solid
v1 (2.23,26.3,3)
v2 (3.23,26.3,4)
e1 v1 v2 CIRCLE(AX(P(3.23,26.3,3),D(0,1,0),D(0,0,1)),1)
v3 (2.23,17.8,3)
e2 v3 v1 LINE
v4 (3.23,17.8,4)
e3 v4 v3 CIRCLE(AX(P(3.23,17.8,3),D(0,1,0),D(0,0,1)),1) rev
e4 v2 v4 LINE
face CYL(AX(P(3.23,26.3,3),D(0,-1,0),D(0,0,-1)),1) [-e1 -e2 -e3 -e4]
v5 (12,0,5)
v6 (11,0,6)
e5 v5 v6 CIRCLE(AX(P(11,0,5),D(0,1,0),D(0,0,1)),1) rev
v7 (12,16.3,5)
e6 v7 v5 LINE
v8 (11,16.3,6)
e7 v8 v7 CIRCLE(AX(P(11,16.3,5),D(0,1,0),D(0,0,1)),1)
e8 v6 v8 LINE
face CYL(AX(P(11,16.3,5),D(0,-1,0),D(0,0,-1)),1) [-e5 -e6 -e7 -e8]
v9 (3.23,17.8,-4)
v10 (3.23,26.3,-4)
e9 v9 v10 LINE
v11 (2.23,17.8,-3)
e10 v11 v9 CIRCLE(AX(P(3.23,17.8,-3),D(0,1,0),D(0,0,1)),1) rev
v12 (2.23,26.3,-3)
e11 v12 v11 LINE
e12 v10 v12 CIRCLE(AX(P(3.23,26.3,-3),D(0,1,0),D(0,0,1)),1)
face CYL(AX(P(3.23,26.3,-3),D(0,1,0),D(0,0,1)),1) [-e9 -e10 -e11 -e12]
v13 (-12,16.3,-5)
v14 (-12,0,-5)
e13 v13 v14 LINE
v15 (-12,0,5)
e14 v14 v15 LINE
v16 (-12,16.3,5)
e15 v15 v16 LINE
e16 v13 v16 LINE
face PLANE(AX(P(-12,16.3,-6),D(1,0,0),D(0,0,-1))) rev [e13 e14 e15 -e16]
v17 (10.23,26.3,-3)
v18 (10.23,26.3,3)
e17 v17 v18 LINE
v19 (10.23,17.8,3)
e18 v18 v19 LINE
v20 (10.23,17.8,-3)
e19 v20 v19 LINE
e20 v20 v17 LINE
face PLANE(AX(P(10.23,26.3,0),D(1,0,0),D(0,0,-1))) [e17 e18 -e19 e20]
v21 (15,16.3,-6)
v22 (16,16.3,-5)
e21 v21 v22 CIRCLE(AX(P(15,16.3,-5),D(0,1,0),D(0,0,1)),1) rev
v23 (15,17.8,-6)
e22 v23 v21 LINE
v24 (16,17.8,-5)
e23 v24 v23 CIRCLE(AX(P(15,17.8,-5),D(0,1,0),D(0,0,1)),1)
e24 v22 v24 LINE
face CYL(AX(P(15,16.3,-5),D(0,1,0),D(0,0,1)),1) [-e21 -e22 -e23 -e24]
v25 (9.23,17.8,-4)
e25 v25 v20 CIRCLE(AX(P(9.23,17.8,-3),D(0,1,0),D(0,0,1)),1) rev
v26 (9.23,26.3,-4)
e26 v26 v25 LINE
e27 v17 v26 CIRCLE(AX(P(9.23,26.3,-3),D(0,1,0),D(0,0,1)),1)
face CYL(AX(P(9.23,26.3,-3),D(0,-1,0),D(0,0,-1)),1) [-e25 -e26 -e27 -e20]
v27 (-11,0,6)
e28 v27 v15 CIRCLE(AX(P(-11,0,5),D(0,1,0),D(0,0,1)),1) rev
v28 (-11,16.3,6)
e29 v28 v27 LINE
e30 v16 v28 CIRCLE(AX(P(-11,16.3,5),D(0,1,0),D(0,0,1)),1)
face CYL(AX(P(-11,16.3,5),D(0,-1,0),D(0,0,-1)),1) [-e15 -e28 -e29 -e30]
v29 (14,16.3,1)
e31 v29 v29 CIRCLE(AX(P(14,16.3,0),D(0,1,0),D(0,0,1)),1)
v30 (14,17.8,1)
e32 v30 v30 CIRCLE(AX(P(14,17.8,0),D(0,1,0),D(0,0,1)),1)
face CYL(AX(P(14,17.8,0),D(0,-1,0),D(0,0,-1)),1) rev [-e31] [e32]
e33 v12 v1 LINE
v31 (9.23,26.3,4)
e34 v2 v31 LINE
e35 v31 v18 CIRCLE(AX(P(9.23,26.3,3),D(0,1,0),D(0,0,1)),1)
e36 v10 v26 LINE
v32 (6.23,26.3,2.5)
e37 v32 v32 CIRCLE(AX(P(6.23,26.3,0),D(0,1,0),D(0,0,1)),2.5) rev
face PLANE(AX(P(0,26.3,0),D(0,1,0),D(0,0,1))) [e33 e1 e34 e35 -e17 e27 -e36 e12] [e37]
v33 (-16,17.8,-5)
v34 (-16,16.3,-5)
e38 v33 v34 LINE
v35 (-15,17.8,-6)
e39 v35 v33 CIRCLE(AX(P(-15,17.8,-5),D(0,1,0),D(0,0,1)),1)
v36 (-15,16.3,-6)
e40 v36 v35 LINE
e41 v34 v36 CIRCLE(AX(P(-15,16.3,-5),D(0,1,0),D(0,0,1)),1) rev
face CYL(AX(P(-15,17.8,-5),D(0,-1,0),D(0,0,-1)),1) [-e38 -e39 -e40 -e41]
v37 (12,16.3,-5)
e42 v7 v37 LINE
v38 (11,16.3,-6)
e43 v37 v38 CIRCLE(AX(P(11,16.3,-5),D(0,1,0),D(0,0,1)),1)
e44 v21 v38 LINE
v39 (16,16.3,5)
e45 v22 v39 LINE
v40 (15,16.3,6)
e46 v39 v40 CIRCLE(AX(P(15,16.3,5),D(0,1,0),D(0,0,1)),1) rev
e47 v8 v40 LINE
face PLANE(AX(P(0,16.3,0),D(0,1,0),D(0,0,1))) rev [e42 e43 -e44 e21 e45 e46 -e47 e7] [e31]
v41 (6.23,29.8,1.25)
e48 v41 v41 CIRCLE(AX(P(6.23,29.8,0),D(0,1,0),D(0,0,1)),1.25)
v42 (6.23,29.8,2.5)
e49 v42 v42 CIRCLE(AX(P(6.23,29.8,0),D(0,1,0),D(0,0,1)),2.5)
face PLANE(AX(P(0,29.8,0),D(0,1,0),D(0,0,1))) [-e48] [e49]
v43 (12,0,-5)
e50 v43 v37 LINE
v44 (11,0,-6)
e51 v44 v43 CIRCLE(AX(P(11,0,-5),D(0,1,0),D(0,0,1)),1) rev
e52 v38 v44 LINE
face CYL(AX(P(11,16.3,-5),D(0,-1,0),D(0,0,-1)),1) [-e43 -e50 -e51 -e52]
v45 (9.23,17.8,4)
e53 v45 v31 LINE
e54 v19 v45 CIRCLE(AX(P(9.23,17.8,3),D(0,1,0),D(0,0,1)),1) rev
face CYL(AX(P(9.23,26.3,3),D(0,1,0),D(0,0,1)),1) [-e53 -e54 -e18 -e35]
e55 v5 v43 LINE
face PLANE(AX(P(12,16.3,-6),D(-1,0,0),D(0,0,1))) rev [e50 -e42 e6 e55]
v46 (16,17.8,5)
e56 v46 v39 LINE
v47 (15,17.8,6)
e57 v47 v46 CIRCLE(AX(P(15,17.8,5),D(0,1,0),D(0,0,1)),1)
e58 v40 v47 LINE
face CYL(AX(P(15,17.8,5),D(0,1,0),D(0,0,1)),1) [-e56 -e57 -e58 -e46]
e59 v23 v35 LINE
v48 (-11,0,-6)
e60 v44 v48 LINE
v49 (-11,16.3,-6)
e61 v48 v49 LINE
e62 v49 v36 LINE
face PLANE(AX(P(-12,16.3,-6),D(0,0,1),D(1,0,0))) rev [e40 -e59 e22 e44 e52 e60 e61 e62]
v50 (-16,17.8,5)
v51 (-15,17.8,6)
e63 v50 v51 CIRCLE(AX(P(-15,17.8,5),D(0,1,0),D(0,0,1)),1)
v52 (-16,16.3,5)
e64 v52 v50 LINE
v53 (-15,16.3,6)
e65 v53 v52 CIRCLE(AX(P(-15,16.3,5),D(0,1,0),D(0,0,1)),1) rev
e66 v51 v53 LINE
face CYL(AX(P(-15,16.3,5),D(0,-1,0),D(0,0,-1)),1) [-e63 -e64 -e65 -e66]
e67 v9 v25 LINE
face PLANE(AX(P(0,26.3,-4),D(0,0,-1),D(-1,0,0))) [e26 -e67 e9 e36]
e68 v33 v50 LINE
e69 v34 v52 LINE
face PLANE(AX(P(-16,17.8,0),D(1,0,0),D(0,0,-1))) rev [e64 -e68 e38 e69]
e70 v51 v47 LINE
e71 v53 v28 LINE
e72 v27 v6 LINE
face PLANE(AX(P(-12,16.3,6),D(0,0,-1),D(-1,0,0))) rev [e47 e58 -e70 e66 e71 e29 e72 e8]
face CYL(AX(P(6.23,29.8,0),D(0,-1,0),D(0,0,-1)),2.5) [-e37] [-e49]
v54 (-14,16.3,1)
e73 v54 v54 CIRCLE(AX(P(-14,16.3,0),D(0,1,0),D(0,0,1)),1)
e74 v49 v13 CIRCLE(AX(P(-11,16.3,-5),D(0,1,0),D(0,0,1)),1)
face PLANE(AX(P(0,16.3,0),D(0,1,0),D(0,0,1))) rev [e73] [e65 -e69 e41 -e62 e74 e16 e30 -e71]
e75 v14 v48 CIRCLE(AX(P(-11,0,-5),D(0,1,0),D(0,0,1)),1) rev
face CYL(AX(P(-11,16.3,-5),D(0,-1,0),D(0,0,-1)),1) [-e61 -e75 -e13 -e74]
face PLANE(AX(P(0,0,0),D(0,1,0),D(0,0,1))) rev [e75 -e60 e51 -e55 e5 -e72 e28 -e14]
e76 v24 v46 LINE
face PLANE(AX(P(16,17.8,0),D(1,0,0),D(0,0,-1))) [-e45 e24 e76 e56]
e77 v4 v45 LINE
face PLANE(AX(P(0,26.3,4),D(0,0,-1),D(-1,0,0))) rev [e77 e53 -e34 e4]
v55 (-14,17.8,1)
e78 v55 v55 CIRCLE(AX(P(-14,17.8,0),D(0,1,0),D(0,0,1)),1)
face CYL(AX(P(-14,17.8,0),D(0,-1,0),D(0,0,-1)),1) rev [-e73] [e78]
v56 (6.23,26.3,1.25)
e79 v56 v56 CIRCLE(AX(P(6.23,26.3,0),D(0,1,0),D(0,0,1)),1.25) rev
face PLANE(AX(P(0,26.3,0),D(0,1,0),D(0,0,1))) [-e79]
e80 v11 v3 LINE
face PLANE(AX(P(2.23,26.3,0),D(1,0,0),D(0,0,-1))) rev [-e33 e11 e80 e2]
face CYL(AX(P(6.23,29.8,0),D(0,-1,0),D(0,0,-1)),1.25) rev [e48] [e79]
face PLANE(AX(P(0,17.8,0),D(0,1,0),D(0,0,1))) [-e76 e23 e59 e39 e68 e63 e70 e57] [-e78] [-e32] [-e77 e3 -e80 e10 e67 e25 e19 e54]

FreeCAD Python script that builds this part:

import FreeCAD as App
import Part
import Sketcher
Q = App.Units.Quantity


def edges_at(feature, points):
    """Names of the edges that pass closest to the given points."""
    edges = feature.Shape.Edges
    near = lambda p: min(range(len(edges)), key=lambda i: edges[i].distToShape(Part.Vertex(*p))[0])
    return sorted({f"Edge{near(p) + 1}" for p in points})


def add_polygon(sketch, points):
    """Adds a closed chain of lines whose ends are joined by coincident constraints."""
    first, n = sketch.GeometryCount, len(points)
    for a, b in zip(points, points[1:] + points[:1]):
        sketch.addGeometry(Part.LineSegment(App.Vector(*a, 0), App.Vector(*b, 0)), False)
    for i in range(n):
        sketch.addConstraint(Sketcher.Constraint("Coincident", first + i, 2, first + (i + 1) % n, 1))

doc = App.newDocument("Part")
body = doc.addObject("PartDesign::Body", "Body")

# Sketch on XZ plane
sketch1 = body.newObject("Sketcher::SketchObject", "Sketch")
sketch1.AttachmentSupport = (doc.getObject("XZ_Plane"), [""])
sketch1.MapMode = "FlatFace"
add_polygon(sketch1, [(-12, -6), (-12, 6), (12, 6), (12, -6)])  # lines 0-3
sketch1.addConstraint(Sketcher.Constraint("Vertical", 0))
sketch1.addConstraint(Sketcher.Constraint("Horizontal", 1))
sketch1.addConstraint(Sketcher.Constraint("Vertical", 2))
sketch1.addConstraint(Sketcher.Constraint("Horizontal", 3))
sketch1.addConstraint(Sketcher.Constraint("Symmetric", 0, 2, 2, 2, -1, 1))
sketch1.addConstraint(Sketcher.Constraint("DistanceX", 1, 1, 1, 2, Q("24 mm")))
sketch1.addConstraint(Sketcher.Constraint("DistanceY", 0, 1, 0, 2, Q("12 mm")))
pad1 = body.newObject("PartDesign::Pad", "Pad")
pad1.Profile = sketch1
pad1.Length = 16.3
pad1.Reversed = True

# Sketch on XZ plane
sketch2 = body.newObject("Sketcher::SketchObject", "Sketch001")
sketch2.AttachmentSupport = (doc.getObject("XZ_Plane"), [""])
sketch2.MapMode = "FlatFace"
sketch2.AttachmentOffset = App.Placement(App.Vector(0, 0, -16.3), App.Rotation())
add_polygon(sketch2, [(16, 6), (16, -6), (-16, -6), (-16, 6)])  # lines 0-3
add_polygon(sketch2, [(10.23, 4), (2.23, 4), (2.23, -4), (10.23, -4)])  # lines 4-7
sketch2.addGeometry(Part.Circle(App.Vector(-14, 0, 0), App.Vector(0, 0, 1), 1), False)  # 8
sketch2.addGeometry(Part.Circle(App.Vector(14, 0, 0), App.Vector(0, 0, 1), 1), False)  # 9
sketch2.addConstraint(Sketcher.Constraint("Vertical", 0))
sketch2.addConstraint(Sketcher.Constraint("Horizontal", 1))
sketch2.addConstraint(Sketcher.Constraint("Vertical", 2))
sketch2.addConstraint(Sketcher.Constraint("Horizontal", 3))
sketch2.addConstraint(Sketcher.Constraint("Horizontal", 4))
sketch2.addConstraint(Sketcher.Constraint("Vertical", 5))
sketch2.addConstraint(Sketcher.Constraint("Horizontal", 6))
sketch2.addConstraint(Sketcher.Constraint("Vertical", 7))
sketch2.addConstraint(Sketcher.Constraint("Equal", 8, 9))
sketch2.addConstraint(Sketcher.Constraint("Symmetric", 8, 3, 9, 3, -1, 1))
sketch2.addConstraint(Sketcher.Constraint("Symmetric", 0, 2, 2, 2, -1, 1))
sketch2.addConstraint(Sketcher.Constraint("PointOnObject", 8, 3, -1))
sketch2.addConstraint(Sketcher.Constraint("Equal", 6, 5))
sketch2.addConstraint(Sketcher.Constraint("Diameter", 8, Q("2 mm")))
sketch2.addConstraint(Sketcher.Constraint("DistanceX", 1, 2, 1, 1, Q("32 mm")))
sketch2.addConstraint(Sketcher.Constraint("DistanceX", 4, 2, 4, 1, Q("8 mm")))
sketch2.addConstraint(Sketcher.Constraint("DistanceY", 0, 2, 0, 1, Q("12 mm")))
sketch2.addConstraint(Sketcher.Constraint("DistanceX", 8, 3, -1, 1, Q("14 mm")))
sketch2.addConstraint(Sketcher.Constraint("DistanceY", -1, 1, 4, 2, Q("4 mm")))
sketch2.addConstraint(Sketcher.Constraint("DistanceX", -1, 1, 4, 2, Q("2.23 mm")))
pad2 = body.newObject("PartDesign::Pad", "Pad001")
pad2.Profile = sketch2
pad2.Length = 1.5
pad2.Reversed = True

# Sketch on XZ plane
sketch3 = body.newObject("Sketcher::SketchObject", "Sketch002")
sketch3.AttachmentSupport = (doc.getObject("XZ_Plane"), [""])
sketch3.MapMode = "FlatFace"
sketch3.AttachmentOffset = App.Placement(App.Vector(0, 0, -16.3), App.Rotation())
add_polygon(sketch3, [(2.23, -4), (2.23, 4), (10.23, 4), (10.23, -4)])  # lines 0-3
sketch3.addConstraint(Sketcher.Constraint("Vertical", 0))
sketch3.addConstraint(Sketcher.Constraint("Horizontal", 1))
sketch3.addConstraint(Sketcher.Constraint("Vertical", 2))
sketch3.addConstraint(Sketcher.Constraint("Horizontal", 3))
sketch3.addConstraint(Sketcher.Constraint("Equal", 3, 0))
sketch3.addConstraint(Sketcher.Constraint("DistanceX", 1, 1, 1, 2, Q("8 mm")))
sketch3.addConstraint(Sketcher.Constraint("DistanceY", -1, 1, 0, 2, Q("4 mm")))
sketch3.addConstraint(Sketcher.Constraint("DistanceX", -1, 1, 0, 2, Q("2.23 mm")))
pad3 = body.newObject("PartDesign::Pad", "Pad002")
pad3.Profile = sketch3
pad3.Length = 10
pad3.Reversed = True

# Sketch on XZ plane
sketch4 = body.newObject("Sketcher::SketchObject", "Sketch003")
sketch4.AttachmentSupport = (doc.getObject("XZ_Plane"), [""])
sketch4.MapMode = "FlatFace"
sketch4.AttachmentOffset = App.Placement(App.Vector(0, 0, -16.3), App.Rotation())
sketch4.addGeometry(Part.Circle(App.Vector(6.23, 0, 0), App.Vector(0, 0, 1), 2.5), False)
sketch4.addGeometry(Part.Circle(App.Vector(6.23, 0, 0), App.Vector(0, 0, 1), 1.25), False)
sketch4.addConstraint(Sketcher.Constraint("Coincident", 1, 3, 0, 3))
sketch4.addConstraint(Sketcher.Constraint("PointOnObject", 0, 3, -1))
sketch4.addConstraint(Sketcher.Constraint("Diameter", 0, Q("5 mm")))
sketch4.addConstraint(Sketcher.Constraint("Diameter", 1, Q("2.5 mm")))
sketch4.addConstraint(Sketcher.Constraint("DistanceX", -1, 1, 0, 3, Q("6.23 mm")))
pad4 = body.newObject("PartDesign::Pad", "Pad003")
pad4.Profile = sketch4
pad4.Length = 13.5
pad4.Reversed = True
doc.recompute()

fillet = body.newObject("PartDesign::Fillet", "Fillet")
fillet.Base = (pad4, edges_at(pad4, [
    (-16, 17.05, 6),
    (16, 17.05, 6),
    (16, 17.05, -6),
    (-16, 17.05, -6),
]))
fillet.Radius = 1
doc.recompute()

fillet2 = body.newObject("PartDesign::Fillet", "Fillet001")
fillet2.Base = (fillet, edges_at(fillet, [
    (10.23, 22.05, 4),
    (10.23, 22.05, -4),
    (2.23, 22.05, -4),
    (2.23, 22.05, 4),
]))
fillet2.Radius = 1
doc.recompute()

fillet3 = body.newObject("PartDesign::Fillet", "Fillet002")
fillet3.Base = (fillet2, edges_at(fillet2, [
    (12, 8.15, 6),
    (-12, 8.15, 6),
    (-12, 8.15, -6),
    (12, 8.15, -6),
]))
fillet3.Radius = 1

doc.recompute()
